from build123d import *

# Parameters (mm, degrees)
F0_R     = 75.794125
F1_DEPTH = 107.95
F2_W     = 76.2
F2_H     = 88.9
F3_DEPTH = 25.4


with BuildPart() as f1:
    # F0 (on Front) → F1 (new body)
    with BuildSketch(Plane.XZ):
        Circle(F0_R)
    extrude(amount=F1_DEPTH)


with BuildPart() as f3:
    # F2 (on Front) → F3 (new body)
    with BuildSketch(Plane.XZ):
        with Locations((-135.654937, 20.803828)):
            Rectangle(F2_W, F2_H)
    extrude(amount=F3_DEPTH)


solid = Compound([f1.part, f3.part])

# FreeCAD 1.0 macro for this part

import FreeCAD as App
import Part
import Sketcher

V = App.Vector
Q = App.Units.Quantity


def add_polygon(sketch, points):
    """Adds a closed chain of lines whose ends are joined by coincident constraints."""
    first, n = sketch.GeometryCount, len(points)
    for a, b in zip(points, points[1:] + points[:1]):
        sketch.addGeometry(Part.LineSegment(App.Vector(*a, 0), App.Vector(*b, 0)), False)
    for i in range(n):
        sketch.addConstraint(Sketcher.Constraint("Coincident", first + i, 2, first + (i + 1) % n, 1))

doc = App.newDocument("Part")
body = doc.addObject("PartDesign::Body", "Body")

sketch1 = body.newObject("Sketcher::SketchObject", "Sketch")
sketch1.AttachmentSupport = (doc.getObject("XZ_Plane"), [""])
sketch1.MapMode = "FlatFace"
sketch1.addGeometry(Part.Circle(V(0, 0, 0), V(0, 0, 1), 76), False)
sketch1.addConstraint(Sketcher.Constraint("Coincident", 0, 3, -1, 1))
sketch1.addConstraint(Sketcher.Constraint("Diameter", 0, 151.58825))
pad1 = body.newObject("PartDesign::Pad", "Pad")
pad1.Profile = sketch1
pad1.Length = Q("4.25 in")
body2 = doc.addObject("PartDesign::Body", "Body001")

sketch2 = body2.newObject("Sketcher::SketchObject", "Sketch001")
sketch2.AttachmentSupport = (doc.getObject("XZ_Plane001"), [""])
sketch2.MapMode = "FlatFace"
add_polygon(sketch2, [(-174, 65), (-174, -24), (-98, -24), (-98, 65)])
sketch2.addConstraint(Sketcher.Constraint("Vertical", 0))
sketch2.addConstraint(Sketcher.Constraint("Horizontal", 1))
sketch2.addConstraint(Sketcher.Constraint("Vertical", 2))
sketch2.addConstraint(Sketcher.Constraint("Horizontal", 3))
sketch2.addConstraint(Sketcher.Constraint("DistanceX", 1, 1, 1, 2, Q("3 in")))
sketch2.addConstraint(Sketcher.Constraint("DistanceY", 0, 2, 0, 1, Q("3.5 in")))
sketch2.addConstraint(Sketcher.Constraint("DistanceY", 0, 2, -1, 1, 23.646172))
sketch2.addConstraint(Sketcher.Constraint("DistanceX", 0, 2, -1, 1, 173.754937))
pad2 = body2.newObject("PartDesign::Pad", "Pad001")
pad2.Profile = sketch2
pad2.Length = Q("1 in")

doc.recompute()
